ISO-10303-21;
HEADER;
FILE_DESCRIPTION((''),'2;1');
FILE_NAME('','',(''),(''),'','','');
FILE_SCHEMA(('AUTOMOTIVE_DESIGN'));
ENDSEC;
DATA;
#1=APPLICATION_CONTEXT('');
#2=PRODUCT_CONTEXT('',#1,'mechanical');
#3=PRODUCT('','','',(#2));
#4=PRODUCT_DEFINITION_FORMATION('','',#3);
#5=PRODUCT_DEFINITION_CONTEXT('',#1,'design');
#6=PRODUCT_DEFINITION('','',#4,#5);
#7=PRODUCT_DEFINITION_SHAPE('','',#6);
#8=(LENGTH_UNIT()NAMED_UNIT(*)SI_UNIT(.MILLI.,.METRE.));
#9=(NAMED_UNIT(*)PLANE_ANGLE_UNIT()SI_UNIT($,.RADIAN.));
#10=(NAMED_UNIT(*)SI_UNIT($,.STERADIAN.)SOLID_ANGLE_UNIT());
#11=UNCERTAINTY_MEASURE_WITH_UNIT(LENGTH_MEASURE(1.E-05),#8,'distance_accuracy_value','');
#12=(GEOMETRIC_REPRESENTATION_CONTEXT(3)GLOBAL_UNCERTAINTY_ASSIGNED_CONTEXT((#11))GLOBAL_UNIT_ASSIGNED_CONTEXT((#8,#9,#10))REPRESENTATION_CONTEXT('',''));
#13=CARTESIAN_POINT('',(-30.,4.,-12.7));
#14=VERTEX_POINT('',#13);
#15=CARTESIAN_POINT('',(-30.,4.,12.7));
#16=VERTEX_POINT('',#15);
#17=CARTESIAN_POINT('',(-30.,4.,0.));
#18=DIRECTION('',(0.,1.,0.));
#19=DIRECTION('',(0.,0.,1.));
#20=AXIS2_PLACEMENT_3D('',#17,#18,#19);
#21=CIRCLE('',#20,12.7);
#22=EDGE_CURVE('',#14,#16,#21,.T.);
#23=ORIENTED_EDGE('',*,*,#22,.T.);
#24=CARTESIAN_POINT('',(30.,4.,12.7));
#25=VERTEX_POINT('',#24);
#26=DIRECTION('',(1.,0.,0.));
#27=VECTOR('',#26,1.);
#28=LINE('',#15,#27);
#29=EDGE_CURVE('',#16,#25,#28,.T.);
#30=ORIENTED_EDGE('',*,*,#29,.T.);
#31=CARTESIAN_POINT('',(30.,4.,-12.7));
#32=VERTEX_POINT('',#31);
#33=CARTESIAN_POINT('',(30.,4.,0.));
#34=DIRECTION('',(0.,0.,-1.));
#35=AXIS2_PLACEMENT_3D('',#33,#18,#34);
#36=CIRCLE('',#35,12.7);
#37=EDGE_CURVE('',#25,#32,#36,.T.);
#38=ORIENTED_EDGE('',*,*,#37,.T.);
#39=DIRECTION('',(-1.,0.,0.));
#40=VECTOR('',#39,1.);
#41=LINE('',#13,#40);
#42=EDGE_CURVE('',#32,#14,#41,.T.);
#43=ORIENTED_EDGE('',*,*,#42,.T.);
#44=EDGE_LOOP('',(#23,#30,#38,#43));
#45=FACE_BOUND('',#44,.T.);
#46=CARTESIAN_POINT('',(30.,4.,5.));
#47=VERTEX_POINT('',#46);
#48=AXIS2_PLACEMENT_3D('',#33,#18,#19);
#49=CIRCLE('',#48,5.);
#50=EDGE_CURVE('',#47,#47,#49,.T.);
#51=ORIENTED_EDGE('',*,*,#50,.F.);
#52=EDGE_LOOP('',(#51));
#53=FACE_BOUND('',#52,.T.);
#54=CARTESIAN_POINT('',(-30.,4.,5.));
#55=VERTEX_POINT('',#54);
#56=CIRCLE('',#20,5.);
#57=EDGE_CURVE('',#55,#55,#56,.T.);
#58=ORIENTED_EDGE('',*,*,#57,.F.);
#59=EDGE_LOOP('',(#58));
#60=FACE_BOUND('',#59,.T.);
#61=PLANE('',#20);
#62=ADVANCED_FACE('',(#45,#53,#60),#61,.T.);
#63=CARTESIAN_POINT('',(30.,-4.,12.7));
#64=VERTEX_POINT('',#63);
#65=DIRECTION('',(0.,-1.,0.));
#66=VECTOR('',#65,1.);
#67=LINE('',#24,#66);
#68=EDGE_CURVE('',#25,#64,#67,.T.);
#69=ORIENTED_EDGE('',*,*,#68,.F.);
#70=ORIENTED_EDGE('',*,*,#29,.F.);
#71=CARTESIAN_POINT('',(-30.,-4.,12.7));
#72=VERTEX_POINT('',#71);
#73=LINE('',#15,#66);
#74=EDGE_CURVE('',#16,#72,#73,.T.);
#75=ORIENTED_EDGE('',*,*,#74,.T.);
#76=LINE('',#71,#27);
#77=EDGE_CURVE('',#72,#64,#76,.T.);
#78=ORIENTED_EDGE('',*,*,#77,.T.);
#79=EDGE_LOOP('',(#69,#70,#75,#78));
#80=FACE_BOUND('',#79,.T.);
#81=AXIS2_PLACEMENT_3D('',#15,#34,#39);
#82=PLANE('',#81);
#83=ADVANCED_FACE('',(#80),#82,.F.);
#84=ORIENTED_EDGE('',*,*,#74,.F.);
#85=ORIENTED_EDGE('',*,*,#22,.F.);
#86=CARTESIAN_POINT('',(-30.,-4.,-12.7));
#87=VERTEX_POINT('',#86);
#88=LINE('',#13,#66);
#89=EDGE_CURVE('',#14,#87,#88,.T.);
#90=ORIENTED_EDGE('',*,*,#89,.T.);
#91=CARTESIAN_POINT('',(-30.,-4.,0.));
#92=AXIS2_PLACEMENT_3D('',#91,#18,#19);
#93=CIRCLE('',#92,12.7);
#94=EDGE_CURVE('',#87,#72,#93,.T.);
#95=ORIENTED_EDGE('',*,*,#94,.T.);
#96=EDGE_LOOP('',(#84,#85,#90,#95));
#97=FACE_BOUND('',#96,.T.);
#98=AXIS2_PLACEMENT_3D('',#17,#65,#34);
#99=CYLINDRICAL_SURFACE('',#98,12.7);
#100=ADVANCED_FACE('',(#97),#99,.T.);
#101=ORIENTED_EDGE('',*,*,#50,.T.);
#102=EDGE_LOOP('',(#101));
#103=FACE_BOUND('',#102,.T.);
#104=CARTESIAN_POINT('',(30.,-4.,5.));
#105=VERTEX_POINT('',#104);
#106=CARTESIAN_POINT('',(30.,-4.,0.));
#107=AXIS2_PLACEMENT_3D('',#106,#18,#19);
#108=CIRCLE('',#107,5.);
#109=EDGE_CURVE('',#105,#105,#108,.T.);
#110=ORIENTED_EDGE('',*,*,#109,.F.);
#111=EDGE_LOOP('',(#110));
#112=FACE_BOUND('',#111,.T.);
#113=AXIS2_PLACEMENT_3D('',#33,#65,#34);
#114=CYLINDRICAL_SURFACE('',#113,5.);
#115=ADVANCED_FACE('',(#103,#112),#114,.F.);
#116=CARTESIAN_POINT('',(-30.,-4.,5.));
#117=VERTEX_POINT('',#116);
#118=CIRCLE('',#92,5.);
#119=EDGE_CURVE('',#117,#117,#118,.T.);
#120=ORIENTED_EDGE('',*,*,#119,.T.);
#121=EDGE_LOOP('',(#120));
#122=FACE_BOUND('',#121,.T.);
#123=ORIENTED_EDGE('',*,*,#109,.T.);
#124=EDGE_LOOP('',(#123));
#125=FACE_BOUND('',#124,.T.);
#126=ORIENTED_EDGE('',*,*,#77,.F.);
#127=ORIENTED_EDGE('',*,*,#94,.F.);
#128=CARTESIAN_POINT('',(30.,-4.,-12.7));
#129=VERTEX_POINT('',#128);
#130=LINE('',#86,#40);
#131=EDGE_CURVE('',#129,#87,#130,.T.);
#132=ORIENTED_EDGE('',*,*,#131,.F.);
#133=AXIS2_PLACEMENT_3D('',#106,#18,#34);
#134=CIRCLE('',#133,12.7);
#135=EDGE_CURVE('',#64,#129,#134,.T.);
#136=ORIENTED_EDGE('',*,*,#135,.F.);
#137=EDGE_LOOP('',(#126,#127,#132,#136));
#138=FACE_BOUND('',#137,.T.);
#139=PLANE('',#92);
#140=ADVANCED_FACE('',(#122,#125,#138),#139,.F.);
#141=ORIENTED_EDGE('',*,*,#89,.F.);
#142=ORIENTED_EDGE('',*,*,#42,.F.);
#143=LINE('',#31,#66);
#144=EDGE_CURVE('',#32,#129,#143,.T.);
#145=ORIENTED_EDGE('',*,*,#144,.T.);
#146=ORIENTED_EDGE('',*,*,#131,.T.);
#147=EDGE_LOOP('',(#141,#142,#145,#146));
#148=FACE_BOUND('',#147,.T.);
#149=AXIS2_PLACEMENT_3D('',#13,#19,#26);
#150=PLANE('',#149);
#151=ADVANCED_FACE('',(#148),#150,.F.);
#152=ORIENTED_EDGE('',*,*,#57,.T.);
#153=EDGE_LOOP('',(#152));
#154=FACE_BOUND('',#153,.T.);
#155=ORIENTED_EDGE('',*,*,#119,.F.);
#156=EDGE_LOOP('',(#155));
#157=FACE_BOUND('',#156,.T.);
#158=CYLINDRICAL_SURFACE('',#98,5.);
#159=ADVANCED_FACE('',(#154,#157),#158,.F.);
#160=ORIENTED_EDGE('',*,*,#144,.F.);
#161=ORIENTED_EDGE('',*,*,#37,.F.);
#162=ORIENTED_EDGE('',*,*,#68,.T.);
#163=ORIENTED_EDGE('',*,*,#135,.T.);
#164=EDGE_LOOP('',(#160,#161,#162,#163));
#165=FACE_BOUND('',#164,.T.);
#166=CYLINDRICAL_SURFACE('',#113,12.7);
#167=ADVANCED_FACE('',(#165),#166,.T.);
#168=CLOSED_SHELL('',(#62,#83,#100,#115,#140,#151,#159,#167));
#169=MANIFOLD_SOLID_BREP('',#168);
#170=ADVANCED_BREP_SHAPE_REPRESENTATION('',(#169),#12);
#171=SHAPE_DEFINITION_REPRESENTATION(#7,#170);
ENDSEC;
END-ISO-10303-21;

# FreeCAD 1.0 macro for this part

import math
import FreeCAD as App
import Part
import Sketcher
from FreeCAD import Vector

doc = App.newDocument("Part")
body = doc.addObject("PartDesign::Body", "Body")

sketch1 = body.newObject("Sketcher::SketchObject", "Sketch")
sketch1.AttachmentSupport = (doc.getObject("XZ_Plane"), [""])
sketch1.MapMode = "FlatFace"
sketch1.addGeometry([
    Part.LineSegment(Vector(30, -13, 0), Vector(-30, -13, 0)),
    Part.ArcOfCircle(Part.Circle(Vector(-30, 0, 0), Vector(0, 0, 1), 13), math.radians(90), math.radians(270)),
    Part.LineSegment(Vector(-30, 13, 0), Vector(30, 13, 0)),
    Part.ArcOfCircle(Part.Circle(Vector(30, 0, 0), Vector(0, 0, 1), 13), math.radians(-90), math.radians(90)),
    Part.Circle(Vector(30, 0, 0), Vector(0, 0, 1), 5),
    Part.Circle(Vector(-30, 0, 0), Vector(0, 0, 1), 5),
], False)
sketch1.addConstraint([
    Sketcher.Constraint("Tangent", 0, 2, 1, 2),
    Sketcher.Constraint("Tangent", 1, 1, 2, 1),
    Sketcher.Constraint("Tangent", 2, 2, 3, 2),
    Sketcher.Constraint("Tangent", 3, 1, 0, 1),
    Sketcher.Constraint("Horizontal", 0),
    Sketcher.Constraint("Horizontal", 2),
    Sketcher.Constraint("Coincident", 4, 3, 3, 3),
    Sketcher.Constraint("Coincident", 5, 3, 1, 3),
    Sketcher.Constraint("Equal", 4, 5),
    Sketcher.Constraint("Symmetric", 1, 3, 3, 3, -1, 1),
    Sketcher.Constraint("Diameter", 4, 10.0),
    Sketcher.Constraint("Radius", 1, 12.7),
    Sketcher.Constraint("DistanceX", 0, 2, 0, 1, 60.0),
])
pad1 = body.newObject("PartDesign::Pad", "Pad")
pad1.Profile = sketch1
pad1.Length = 8
pad1.Midplane = True

doc.recompute()
